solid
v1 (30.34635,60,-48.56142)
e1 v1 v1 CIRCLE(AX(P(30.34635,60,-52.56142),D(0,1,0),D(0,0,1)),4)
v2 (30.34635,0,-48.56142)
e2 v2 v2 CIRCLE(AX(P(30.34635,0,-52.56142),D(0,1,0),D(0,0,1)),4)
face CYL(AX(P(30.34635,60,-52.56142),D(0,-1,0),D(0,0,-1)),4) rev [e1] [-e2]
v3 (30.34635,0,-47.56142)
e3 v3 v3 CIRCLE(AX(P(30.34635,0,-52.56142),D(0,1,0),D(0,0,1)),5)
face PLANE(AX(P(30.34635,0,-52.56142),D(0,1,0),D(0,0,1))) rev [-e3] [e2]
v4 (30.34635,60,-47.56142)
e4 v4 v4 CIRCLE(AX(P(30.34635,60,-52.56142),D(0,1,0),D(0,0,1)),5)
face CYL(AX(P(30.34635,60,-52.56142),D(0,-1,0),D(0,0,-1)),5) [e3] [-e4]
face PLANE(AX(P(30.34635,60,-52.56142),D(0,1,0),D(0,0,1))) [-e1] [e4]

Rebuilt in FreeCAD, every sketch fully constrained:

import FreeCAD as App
import Part
import Sketcher
from FreeCAD import Vector
Q = App.Units.Quantity

doc = App.newDocument("Part")
body = doc.addObject("PartDesign::Body", "Body")

sketch1 = body.newObject("Sketcher::SketchObject", "Sketch")
sketch1.AttachmentSupport = (doc.getObject("XZ_Plane"), [""])
sketch1.MapMode = "FlatFace"
sketch1.addGeometry(Part.Circle(Vector(30.3, -52.6, 0), Vector(0, 0, 1), 5), False)
sketch1.addGeometry(Part.Circle(Vector(30.3, -52.6, 0), Vector(0, 0, 1), 4), False)
sketch1.addConstraint(Sketcher.Constraint("Coincident", 1, 3, 0, 3))
sketch1.addConstraint(Sketcher.Constraint("Diameter", 0, Q("10 mm")))
sketch1.addConstraint(Sketcher.Constraint("Diameter", 1, Q("8 mm")))
sketch1.addConstraint(Sketcher.Constraint("DistanceX", -1, 1, 0, 3, Q("30.34635 mm")))
sketch1.addConstraint(Sketcher.Constraint("DistanceY", 0, 3, -1, 1, Q("52.56142 mm")))
pad1 = body.newObject("PartDesign::Pad", "Pad")
pad1.Profile = sketch1
pad1.Length = 60
pad1.Reversed = True

doc.recompute()
